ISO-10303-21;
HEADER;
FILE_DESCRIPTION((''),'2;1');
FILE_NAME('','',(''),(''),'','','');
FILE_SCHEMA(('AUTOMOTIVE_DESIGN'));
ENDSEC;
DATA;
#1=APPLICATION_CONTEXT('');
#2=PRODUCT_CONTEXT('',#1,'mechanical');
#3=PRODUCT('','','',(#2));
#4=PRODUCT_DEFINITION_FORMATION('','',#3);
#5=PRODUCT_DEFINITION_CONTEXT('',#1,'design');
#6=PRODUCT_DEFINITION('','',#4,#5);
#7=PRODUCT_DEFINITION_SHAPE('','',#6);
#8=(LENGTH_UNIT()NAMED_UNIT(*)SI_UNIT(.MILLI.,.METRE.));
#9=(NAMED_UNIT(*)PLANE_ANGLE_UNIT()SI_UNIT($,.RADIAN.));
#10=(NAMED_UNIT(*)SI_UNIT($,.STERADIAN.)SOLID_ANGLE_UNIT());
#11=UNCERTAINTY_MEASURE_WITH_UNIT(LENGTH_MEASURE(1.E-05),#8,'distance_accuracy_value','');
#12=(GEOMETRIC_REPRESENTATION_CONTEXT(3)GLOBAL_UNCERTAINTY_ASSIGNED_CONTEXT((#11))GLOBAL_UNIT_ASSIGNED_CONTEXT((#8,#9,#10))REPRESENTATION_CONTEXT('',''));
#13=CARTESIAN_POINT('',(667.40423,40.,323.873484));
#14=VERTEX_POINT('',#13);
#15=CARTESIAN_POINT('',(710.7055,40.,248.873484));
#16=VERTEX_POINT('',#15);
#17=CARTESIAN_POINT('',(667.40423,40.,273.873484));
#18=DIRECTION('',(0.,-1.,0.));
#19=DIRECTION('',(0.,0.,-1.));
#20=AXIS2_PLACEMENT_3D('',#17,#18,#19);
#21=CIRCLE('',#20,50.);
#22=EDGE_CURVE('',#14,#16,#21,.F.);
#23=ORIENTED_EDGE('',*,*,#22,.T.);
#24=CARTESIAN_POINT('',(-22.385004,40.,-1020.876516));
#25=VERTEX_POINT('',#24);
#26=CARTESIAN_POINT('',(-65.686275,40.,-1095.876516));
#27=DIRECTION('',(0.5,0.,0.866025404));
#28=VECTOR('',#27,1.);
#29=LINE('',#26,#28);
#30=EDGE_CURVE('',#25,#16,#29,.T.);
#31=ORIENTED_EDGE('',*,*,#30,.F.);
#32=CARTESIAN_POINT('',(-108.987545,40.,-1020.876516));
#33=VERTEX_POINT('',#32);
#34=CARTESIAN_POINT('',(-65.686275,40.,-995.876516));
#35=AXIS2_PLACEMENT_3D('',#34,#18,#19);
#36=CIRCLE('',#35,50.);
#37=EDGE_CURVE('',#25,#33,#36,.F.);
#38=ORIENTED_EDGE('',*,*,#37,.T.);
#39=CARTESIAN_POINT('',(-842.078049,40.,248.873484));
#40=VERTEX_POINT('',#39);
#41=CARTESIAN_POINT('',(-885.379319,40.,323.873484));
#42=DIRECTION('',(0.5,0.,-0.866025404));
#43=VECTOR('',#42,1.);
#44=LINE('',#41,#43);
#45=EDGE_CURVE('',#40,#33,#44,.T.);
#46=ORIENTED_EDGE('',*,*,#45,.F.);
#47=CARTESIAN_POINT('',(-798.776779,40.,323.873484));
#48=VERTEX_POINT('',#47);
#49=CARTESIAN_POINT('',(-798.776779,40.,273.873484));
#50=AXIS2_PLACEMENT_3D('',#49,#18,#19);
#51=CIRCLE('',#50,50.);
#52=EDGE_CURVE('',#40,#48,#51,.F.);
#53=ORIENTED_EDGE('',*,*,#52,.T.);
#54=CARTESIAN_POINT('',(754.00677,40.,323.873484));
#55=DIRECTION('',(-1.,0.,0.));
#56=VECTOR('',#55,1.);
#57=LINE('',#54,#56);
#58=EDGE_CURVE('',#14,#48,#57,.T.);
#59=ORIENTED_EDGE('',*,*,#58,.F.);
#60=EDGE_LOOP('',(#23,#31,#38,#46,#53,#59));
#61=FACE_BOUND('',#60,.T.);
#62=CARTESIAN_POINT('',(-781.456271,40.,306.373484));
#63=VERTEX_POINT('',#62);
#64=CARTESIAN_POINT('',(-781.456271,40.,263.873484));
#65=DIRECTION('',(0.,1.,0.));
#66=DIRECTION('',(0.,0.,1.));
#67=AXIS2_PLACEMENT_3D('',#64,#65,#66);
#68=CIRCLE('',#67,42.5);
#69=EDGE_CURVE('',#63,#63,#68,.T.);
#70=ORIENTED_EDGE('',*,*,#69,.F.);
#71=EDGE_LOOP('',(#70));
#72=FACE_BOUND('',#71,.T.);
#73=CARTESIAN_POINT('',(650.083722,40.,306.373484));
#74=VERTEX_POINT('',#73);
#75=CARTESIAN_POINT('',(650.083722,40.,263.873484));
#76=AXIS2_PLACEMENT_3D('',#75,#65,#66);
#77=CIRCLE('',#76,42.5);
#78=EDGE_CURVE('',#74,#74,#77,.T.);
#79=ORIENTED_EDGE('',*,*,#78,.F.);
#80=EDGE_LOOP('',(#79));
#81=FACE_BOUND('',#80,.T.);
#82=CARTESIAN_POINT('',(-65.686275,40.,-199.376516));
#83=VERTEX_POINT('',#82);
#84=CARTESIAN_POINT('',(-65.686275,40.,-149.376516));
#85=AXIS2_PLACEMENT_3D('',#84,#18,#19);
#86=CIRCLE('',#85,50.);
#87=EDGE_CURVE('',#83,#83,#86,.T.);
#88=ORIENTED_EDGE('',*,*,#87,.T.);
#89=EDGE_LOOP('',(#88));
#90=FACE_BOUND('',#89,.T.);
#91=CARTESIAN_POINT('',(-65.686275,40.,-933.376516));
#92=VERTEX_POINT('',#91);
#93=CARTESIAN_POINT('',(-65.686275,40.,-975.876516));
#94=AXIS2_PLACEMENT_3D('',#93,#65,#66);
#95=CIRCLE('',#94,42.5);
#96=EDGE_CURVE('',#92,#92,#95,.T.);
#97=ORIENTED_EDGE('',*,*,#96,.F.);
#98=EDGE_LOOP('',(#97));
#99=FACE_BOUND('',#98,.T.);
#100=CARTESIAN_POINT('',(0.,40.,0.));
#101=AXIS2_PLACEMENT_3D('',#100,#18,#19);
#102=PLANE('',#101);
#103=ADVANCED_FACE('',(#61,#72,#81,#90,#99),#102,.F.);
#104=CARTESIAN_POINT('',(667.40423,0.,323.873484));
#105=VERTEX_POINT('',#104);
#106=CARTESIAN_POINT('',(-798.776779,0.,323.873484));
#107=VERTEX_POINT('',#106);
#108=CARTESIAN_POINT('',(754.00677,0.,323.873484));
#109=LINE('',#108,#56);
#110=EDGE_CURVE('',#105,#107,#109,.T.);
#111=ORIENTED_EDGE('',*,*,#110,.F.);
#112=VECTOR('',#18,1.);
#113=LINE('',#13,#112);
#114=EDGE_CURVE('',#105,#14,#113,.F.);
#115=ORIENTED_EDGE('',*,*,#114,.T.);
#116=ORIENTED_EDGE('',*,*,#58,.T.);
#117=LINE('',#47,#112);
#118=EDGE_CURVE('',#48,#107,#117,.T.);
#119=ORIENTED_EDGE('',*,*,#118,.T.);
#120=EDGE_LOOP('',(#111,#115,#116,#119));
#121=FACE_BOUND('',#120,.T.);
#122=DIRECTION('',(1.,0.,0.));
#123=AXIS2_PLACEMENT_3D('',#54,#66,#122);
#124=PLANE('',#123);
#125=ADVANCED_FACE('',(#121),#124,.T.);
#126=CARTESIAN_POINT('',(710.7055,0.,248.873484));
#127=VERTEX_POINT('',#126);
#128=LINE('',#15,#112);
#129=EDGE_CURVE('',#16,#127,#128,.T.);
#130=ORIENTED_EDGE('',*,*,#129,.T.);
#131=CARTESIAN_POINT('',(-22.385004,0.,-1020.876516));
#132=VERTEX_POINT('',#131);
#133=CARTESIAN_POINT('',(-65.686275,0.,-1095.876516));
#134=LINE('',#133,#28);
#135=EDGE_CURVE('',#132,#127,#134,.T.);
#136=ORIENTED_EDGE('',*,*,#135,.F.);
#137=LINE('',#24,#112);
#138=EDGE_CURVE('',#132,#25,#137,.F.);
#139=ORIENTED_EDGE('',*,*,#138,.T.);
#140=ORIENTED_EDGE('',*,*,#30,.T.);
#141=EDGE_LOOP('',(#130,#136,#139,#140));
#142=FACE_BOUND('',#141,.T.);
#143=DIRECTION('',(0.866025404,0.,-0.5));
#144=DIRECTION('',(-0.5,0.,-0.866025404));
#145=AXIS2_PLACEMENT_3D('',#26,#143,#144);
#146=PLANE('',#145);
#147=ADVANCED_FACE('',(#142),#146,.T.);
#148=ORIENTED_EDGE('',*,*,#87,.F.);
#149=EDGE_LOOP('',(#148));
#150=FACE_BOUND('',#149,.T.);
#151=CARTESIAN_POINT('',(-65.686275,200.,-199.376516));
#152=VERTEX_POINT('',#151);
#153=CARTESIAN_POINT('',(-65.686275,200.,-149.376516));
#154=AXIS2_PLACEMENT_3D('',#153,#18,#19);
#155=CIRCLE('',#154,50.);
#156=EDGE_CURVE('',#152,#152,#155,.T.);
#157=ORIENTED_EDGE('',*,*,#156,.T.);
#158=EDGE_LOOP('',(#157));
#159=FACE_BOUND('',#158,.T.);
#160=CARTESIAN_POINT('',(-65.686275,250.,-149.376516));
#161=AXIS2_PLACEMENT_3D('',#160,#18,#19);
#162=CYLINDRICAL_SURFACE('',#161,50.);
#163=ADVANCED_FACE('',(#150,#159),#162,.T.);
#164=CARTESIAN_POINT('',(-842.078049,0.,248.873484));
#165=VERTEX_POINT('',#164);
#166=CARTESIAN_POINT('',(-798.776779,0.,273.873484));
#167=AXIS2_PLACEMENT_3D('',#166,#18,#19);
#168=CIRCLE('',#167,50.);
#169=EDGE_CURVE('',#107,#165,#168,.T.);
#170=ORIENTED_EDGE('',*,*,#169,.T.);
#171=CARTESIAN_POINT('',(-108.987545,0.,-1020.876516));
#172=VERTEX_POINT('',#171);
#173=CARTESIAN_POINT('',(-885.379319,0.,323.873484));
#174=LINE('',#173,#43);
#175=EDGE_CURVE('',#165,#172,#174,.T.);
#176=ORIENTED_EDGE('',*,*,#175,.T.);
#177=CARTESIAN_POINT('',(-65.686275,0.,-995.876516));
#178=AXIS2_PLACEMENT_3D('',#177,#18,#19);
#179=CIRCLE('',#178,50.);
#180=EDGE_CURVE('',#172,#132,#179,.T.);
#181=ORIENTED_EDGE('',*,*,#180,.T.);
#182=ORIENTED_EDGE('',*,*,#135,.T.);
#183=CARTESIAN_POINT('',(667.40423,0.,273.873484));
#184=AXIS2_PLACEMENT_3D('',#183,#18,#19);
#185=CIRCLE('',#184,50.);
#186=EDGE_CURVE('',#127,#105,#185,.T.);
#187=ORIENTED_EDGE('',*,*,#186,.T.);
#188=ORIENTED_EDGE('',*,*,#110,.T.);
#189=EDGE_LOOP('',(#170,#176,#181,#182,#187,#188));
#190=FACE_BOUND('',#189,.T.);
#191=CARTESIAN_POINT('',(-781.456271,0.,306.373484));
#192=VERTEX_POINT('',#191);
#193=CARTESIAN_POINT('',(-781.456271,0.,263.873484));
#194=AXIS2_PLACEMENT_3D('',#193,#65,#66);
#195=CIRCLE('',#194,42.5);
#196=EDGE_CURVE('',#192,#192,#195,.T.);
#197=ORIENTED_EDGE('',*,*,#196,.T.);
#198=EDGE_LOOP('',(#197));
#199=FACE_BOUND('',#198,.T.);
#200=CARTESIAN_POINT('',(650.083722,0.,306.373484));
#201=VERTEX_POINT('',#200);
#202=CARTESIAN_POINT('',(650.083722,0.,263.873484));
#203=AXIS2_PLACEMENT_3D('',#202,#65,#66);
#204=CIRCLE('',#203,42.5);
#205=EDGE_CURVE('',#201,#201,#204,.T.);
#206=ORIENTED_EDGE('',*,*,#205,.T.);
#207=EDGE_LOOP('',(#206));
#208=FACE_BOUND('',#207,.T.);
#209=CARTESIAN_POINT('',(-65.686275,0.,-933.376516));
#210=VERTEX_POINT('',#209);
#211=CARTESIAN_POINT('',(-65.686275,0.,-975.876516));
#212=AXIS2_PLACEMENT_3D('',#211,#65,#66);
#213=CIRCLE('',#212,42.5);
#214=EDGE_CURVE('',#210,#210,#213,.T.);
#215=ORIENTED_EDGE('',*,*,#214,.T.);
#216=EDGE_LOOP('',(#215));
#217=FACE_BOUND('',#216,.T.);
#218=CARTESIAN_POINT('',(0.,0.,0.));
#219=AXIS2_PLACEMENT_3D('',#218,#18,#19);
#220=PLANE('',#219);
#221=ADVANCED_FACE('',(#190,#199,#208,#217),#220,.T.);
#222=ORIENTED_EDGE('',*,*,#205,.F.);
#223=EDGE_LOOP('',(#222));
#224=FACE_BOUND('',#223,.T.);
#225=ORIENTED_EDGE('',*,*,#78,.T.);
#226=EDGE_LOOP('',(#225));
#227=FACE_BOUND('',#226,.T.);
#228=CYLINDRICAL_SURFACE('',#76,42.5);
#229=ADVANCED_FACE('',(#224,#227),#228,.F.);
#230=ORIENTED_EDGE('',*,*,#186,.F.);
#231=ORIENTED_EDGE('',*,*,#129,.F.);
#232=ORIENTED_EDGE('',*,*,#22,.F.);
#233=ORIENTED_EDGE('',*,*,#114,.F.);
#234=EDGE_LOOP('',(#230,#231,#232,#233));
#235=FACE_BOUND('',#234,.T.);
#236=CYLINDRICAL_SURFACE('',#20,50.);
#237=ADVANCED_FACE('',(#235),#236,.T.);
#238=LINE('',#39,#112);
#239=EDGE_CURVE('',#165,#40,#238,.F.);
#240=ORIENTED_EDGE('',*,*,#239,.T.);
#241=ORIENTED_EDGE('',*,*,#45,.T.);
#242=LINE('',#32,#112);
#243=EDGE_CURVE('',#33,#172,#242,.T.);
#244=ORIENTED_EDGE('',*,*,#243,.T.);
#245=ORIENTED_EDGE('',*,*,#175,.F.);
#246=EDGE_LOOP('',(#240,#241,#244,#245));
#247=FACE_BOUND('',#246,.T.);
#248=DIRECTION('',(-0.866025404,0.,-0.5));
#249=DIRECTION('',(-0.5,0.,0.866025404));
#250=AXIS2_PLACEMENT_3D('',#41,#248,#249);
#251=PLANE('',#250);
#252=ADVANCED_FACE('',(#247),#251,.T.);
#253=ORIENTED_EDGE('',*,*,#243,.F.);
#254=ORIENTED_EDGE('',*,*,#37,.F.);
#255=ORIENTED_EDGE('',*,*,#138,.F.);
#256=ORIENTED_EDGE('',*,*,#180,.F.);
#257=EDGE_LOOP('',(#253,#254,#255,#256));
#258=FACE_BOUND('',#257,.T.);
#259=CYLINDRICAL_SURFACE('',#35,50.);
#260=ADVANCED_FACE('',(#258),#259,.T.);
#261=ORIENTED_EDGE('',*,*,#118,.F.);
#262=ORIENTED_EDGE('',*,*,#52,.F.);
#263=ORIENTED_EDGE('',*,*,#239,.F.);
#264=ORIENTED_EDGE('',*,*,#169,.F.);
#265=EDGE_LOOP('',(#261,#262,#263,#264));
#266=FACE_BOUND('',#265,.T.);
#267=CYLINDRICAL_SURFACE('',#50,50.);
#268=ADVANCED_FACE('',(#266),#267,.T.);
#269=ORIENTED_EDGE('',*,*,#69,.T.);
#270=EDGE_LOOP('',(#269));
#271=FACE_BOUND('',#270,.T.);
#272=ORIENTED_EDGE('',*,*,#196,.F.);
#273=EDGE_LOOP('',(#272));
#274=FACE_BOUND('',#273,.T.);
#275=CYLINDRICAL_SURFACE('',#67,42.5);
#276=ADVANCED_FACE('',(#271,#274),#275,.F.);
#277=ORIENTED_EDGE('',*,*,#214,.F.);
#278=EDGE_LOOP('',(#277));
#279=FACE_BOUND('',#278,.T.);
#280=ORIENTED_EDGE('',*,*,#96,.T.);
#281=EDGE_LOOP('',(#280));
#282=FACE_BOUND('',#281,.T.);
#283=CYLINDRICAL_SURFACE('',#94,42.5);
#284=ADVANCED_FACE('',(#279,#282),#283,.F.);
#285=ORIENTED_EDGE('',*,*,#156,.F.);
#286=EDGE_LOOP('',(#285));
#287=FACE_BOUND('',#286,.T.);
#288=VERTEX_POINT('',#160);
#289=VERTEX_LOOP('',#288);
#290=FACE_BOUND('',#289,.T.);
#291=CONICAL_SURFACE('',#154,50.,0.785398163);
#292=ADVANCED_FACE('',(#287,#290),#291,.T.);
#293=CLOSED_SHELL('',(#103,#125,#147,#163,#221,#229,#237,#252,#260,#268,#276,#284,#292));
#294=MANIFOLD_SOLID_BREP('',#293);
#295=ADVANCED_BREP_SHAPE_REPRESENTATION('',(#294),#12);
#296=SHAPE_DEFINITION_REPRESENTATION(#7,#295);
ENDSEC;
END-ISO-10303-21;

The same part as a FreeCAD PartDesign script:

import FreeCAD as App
import Part
import Sketcher
Q = App.Units.Quantity


def edges_at(feature, points):
    """Names of the edges that pass closest to the given points."""
    edges = feature.Shape.Edges
    near = lambda p: min(range(len(edges)), key=lambda i: edges[i].distToShape(Part.Vertex(*p))[0])
    return sorted({f"Edge{near(p) + 1}" for p in points})

doc = App.newDocument("Part")
body = doc.addObject("PartDesign::Body", "Body")

sketch1 = body.newObject("Sketcher::SketchObject", "Sketch")
sketch1.AttachmentSupport = (doc.getObject("XZ_Plane"), [""])
sketch1.MapMode = "FlatFace"
sketch1.addGeometry([
    Part.LineSegment(App.Vector(754.00677, 323.873484, 0), App.Vector(-65.686275, -1095.876516, 0)),
    Part.LineSegment(App.Vector(-65.686275, -1095.876516, 0), App.Vector(-885.379319, 323.873484, 0)),
    Part.LineSegment(App.Vector(-885.379319, 323.873484, 0), App.Vector(754.00677, 323.873484, 0)),
], False)
sketch1.addConstraint([
    Sketcher.Constraint("Coincident", 0, 2, 1, 1),
    Sketcher.Constraint("Coincident", 1, 2, 2, 1),
    Sketcher.Constraint("Coincident", 2, 2, 0, 1),
    Sketcher.Constraint("Horizontal", 2),
    Sketcher.Constraint("Equal", 0, 1),
    Sketcher.Constraint("Angle", 0, Q("-120 deg")),
    Sketcher.Constraint("DistanceY", 0, 2, 1, 2, 1419.75),
    Sketcher.Constraint("DistanceX", 1, 2, -1, 1, 885.379319),
    Sketcher.Constraint("DistanceY", 0, 2, -1, 1, 1095.876516),
])
pad1 = body.newObject("PartDesign::Pad", "Pad")
pad1.Profile = sketch1
pad1.Length = 40
pad1.Reversed = True

sketch2 = body.newObject("Sketcher::SketchObject", "Sketch001")
sketch2.AttachmentSupport = (doc.getObject("XZ_Plane"), [""])
sketch2.MapMode = "FlatFace"
sketch2.AttachmentOffset = App.Placement(App.Vector(0, 0, -40), App.Rotation())
sketch2.addGeometry([
    Part.Circle(App.Vector(-65.686275, -975.876516, 0), App.Vector(0, 0, 1), 42.5),
    Part.Circle(App.Vector(-781.456271, 263.873484, 0), App.Vector(0, 0, 1), 42.5),
    Part.Circle(App.Vector(650.083722, 263.873484, 0), App.Vector(0, 0, 1), 42.5),
], False)
sketch2.addConstraint([
    Sketcher.Constraint("Equal", 0, 1),
    Sketcher.Constraint("Equal", 1, 2),
    Sketcher.Constraint("Horizontal", 1, 3, 2, 3),
    Sketcher.Constraint("Diameter", 0, 85.0),
    Sketcher.Constraint("DistanceY", 0, 3, 1, 3, 1239.75),
    Sketcher.Constraint("DistanceX", 1, 3, -1, 1, 781.456271),
    Sketcher.Constraint("DistanceX", -1, 1, 2, 3, 650.083722),
    Sketcher.Constraint("DistanceX", 0, 3, -1, 1, 65.686275),
    Sketcher.Constraint("DistanceY", 0, 3, -1, 1, 975.876516),
])
doc.recompute()
hole = body.newObject("PartDesign::Hole", "Hole")
hole.Profile = sketch2
hole.ThreadType = "None"
hole.Diameter = 85
hole.DepthType = "ThroughAll"
hole.Reversed = True

sketch3 = body.newObject("Sketcher::SketchObject", "Sketch002")
sketch3.AttachmentSupport = (doc.getObject("XZ_Plane"), [""])
sketch3.MapMode = "FlatFace"
sketch3.addGeometry(Part.Circle(App.Vector(-65.686275, -149.376516, 0), App.Vector(0, 0, 1), 50), False)
sketch3.addConstraint([
    Sketcher.Constraint("Diameter", 0, 100.0),
    Sketcher.Constraint("DistanceX", 0, 3, -1, 1, 65.686275),
    Sketcher.Constraint("DistanceY", 0, 3, -1, 1, 149.376516),
])
pad2 = body.newObject("PartDesign::Pad", "Pad001")
pad2.Profile = sketch3
pad2.Length = 250
pad2.Reversed = True
doc.recompute()

fillet = body.newObject("PartDesign::Fillet", "Fillet")
fillet.Base = (pad2, edges_at(pad2, [(-885.379, 20, 323.873), (754.007, 20, 323.873), (-65.686, 20, -1095.877)]))
fillet.Radius = 50
doc.recompute()

chamfer = body.newObject("PartDesign::Chamfer", "Chamfer")
chamfer.Base = (fillet, edges_at(fillet, [(-65.686, 250, -99.377)]))
chamfer.Size = 50

doc.recompute()
